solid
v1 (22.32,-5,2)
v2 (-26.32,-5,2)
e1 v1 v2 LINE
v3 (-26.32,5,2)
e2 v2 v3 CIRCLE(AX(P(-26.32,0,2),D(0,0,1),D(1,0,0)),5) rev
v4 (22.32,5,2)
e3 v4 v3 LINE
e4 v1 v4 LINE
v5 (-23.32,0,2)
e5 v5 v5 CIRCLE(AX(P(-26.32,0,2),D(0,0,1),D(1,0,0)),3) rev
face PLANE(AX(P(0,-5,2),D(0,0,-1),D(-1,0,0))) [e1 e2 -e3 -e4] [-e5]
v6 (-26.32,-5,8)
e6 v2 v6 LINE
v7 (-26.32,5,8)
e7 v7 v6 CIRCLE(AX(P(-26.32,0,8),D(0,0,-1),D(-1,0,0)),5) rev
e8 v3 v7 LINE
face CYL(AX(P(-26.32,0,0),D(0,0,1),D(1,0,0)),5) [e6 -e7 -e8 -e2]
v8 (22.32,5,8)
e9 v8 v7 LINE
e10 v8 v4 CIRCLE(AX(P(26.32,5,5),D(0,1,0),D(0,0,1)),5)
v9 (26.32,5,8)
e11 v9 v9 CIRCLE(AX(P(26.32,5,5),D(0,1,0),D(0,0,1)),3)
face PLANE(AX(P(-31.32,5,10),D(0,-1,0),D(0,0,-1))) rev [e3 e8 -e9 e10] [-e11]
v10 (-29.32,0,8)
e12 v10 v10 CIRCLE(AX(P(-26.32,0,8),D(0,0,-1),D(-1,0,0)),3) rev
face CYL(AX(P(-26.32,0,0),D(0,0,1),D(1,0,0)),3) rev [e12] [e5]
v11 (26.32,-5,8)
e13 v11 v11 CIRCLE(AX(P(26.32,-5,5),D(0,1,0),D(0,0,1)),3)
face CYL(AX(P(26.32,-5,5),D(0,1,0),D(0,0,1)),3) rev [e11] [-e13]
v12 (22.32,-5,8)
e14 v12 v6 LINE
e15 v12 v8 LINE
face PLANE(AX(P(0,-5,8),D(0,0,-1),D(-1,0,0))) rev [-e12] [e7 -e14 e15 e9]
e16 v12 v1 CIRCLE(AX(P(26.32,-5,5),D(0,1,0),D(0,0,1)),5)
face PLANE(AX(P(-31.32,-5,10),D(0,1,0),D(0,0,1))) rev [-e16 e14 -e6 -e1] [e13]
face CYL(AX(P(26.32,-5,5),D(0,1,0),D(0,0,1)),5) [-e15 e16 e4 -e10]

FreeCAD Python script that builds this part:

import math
import FreeCAD as App
import Part
import Sketcher
Q = App.Units.Quantity

doc = App.newDocument("Part")
body = doc.addObject("PartDesign::Body", "Body")

# Sketch on XY plane
sketch1 = body.newObject("Sketcher::SketchObject", "Sketch")
sketch1.AttachmentSupport = (doc.getObject("XY_Plane"), [""])
sketch1.MapMode = "FlatFace"
sketch1.addGeometry(Part.LineSegment(App.Vector(-31, 5, 0), App.Vector(-31, -5, 0)), False)
sketch1.addGeometry(Part.LineSegment(App.Vector(-31, -5, 0), App.Vector(31, -5, 0)), False)
sketch1.addGeometry(Part.LineSegment(App.Vector(31, -5, 0), App.Vector(31, 5, 0)), False)
sketch1.addGeometry(Part.LineSegment(App.Vector(31, 5, 0), App.Vector(-31, 5, 0)), False)
sketch1.addConstraint(Sketcher.Constraint("Coincident", 0, 2, 1, 1))
sketch1.addConstraint(Sketcher.Constraint("Coincident", 1, 2, 2, 1))
sketch1.addConstraint(Sketcher.Constraint("Coincident", 2, 2, 3, 1))
sketch1.addConstraint(Sketcher.Constraint("Coincident", 3, 2, 0, 1))
sketch1.addConstraint(Sketcher.Constraint("Vertical", 0))
sketch1.addConstraint(Sketcher.Constraint("Horizontal", 1))
sketch1.addConstraint(Sketcher.Constraint("Vertical", 2))
sketch1.addConstraint(Sketcher.Constraint("Horizontal", 3))
sketch1.addConstraint(Sketcher.Constraint("Symmetric", 0, 2, 2, 2, -1, 1))
sketch1.addConstraint(Sketcher.Constraint("DistanceY", 0, 2, 0, 1, Q("10 mm")))
sketch1.addConstraint(Sketcher.Constraint("DistanceX", 1, 1, 1, 2, Q("62.64 mm")))
pad1 = body.newObject("PartDesign::Pad", "Pad")
pad1.Profile = sketch1
pad1.Length = 10

# Sketch on XZ plane
sketch2 = body.newObject("Sketcher::SketchObject", "Sketch001")
sketch2.AttachmentSupport = (doc.getObject("XZ_Plane"), [""])
sketch2.MapMode = "FlatFace"
sketch2.AttachmentOffset = App.Placement(App.Vector(0, 0, -5), App.Rotation())
sketch2.addGeometry(Part.ArcOfCircle(Part.Circle(App.Vector(26.3, 5, 0), App.Vector(0, 0, 1), 5), math.radians(0), math.radians(90)), False)
sketch2.addGeometry(Part.LineSegment(App.Vector(26.3, 10, 0), App.Vector(31.3, 10, 0)), False)
sketch2.addGeometry(Part.LineSegment(App.Vector(31.3, 10, 0), App.Vector(31.3, 5, 0)), False)
sketch2.addGeometry(Part.LineSegment(App.Vector(31.3, 0, 0), App.Vector(26.3, 0, 0)), False)
sketch2.addGeometry(Part.ArcOfCircle(Part.Circle(App.Vector(26.3, 5, 0), App.Vector(0, 0, 1), 5), math.radians(-90), math.radians(0)), False)
sketch2.addGeometry(Part.LineSegment(App.Vector(31.3, 5, 0), App.Vector(31.3, 0, 0)), False)
sketch2.addGeometry(Part.Circle(App.Vector(26.3, 5, 0), App.Vector(0, 0, 1), 3), False)
sketch2.addConstraint(Sketcher.Constraint("Tangent", 0, 2, 1, 1))
sketch2.addConstraint(Sketcher.Constraint("Coincident", 1, 2, 2, 1))
sketch2.addConstraint(Sketcher.Constraint("Tangent", 2, 2, 0, 1))
sketch2.addConstraint(Sketcher.Constraint("Tangent", 3, 2, 4, 1))
sketch2.addConstraint(Sketcher.Constraint("Tangent", 4, 2, 5, 1))
sketch2.addConstraint(Sketcher.Constraint("Coincident", 5, 2, 3, 1))
sketch2.addConstraint(Sketcher.Constraint("Horizontal", 1))
sketch2.addConstraint(Sketcher.Constraint("Vertical", 2))
sketch2.addConstraint(Sketcher.Constraint("Horizontal", 3))
sketch2.addConstraint(Sketcher.Constraint("Vertical", 5))
sketch2.addConstraint(Sketcher.Constraint("Coincident", 4, 3, 0, 3))
sketch2.addConstraint(Sketcher.Constraint("Coincident", 6, 3, 0, 3))
sketch2.addConstraint(Sketcher.Constraint("Equal", 0, 4))
sketch2.addConstraint(Sketcher.Constraint("PointOnObject", 3, 2, -1))
sketch2.addConstraint(Sketcher.Constraint("Diameter", 6, Q("6 mm")))
sketch2.addConstraint(Sketcher.Constraint("Radius", 0, Q("5 mm")))
sketch2.addConstraint(Sketcher.Constraint("DistanceX", -1, 1, 0, 3, Q("26.32 mm")))
pocket1 = body.newObject("PartDesign::Pocket", "Pocket")
pocket1.Profile = sketch2
pocket1.Type = "ThroughAll"
pocket1.Reversed = True

# Sketch on XY plane
sketch3 = body.newObject("Sketcher::SketchObject", "Sketch002")
sketch3.AttachmentSupport = (doc.getObject("XY_Plane"), [""])
sketch3.MapMode = "FlatFace"
sketch3.AttachmentOffset = App.Placement(App.Vector(0, 0, 10), App.Rotation())
sketch3.addGeometry(Part.ArcOfCircle(Part.Circle(App.Vector(-26.3, 0, 0), App.Vector(0, 0, 1), 5), math.radians(90), math.radians(180)), False)
sketch3.addGeometry(Part.LineSegment(App.Vector(-26.3, 5, 0), App.Vector(-31.3, 5, 0)), False)
sketch3.addGeometry(Part.LineSegment(App.Vector(-31.3, 5, 0), App.Vector(-31.3, 0, 0)), False)
sketch3.addGeometry(Part.ArcOfCircle(Part.Circle(App.Vector(-26.3, 0, 0), App.Vector(0, 0, 1), 5), math.radians(180), math.radians(270)), False)
sketch3.addGeometry(Part.LineSegment(App.Vector(-31.3, 0, 0), App.Vector(-31.3, -5, 0)), False)
sketch3.addGeometry(Part.LineSegment(App.Vector(-31.3, -5, 0), App.Vector(-26.3, -5, 0)), False)
sketch3.addGeometry(Part.Circle(App.Vector(-26.3, 0, 0), App.Vector(0, 0, 1), 3), False)
sketch3.addConstraint(Sketcher.Constraint("Tangent", 0, 1, 1, 1))
sketch3.addConstraint(Sketcher.Constraint("Coincident", 1, 2, 2, 1))
sketch3.addConstraint(Sketcher.Constraint("Tangent", 2, 2, 0, 2))
sketch3.addConstraint(Sketcher.Constraint("Tangent", 3, 1, 4, 1))
sketch3.addConstraint(Sketcher.Constraint("Coincident", 4, 2, 5, 1))
sketch3.addConstraint(Sketcher.Constraint("Tangent", 5, 2, 3, 2))
sketch3.addConstraint(Sketcher.Constraint("Horizontal", 1))
sketch3.addConstraint(Sketcher.Constraint("Vertical", 2))
sketch3.addConstraint(Sketcher.Constraint("Vertical", 4))
sketch3.addConstraint(Sketcher.Constraint("Horizontal", 5))
sketch3.addConstraint(Sketcher.Constraint("Coincident", 3, 3, 0, 3))
sketch3.addConstraint(Sketcher.Constraint("Coincident", 6, 3, 0, 3))
sketch3.addConstraint(Sketcher.Constraint("Equal", 0, 3))
sketch3.addConstraint(Sketcher.Constraint("PointOnObject", 0, 3, -1))
sketch3.addConstraint(Sketcher.Constraint("Diameter", 6, Q("6 mm")))
sketch3.addConstraint(Sketcher.Constraint("Radius", 0, Q("5 mm")))
sketch3.addConstraint(Sketcher.Constraint("DistanceX", 0, 3, -1, 1, Q("26.32 mm")))
pocket2 = body.newObject("PartDesign::Pocket", "Pocket001")
pocket2.Profile = sketch3
pocket2.Type = "ThroughAll"

# Sketch on XZ plane
sketch4 = body.newObject("Sketcher::SketchObject", "Sketch003")
sketch4.AttachmentSupport = (doc.getObject("XZ_Plane"), [""])
sketch4.MapMode = "FlatFace"
sketch4.AttachmentOffset = App.Placement(App.Vector(0, 0, -5), App.Rotation())
sketch4.addGeometry(Part.LineSegment(App.Vector(-21.3, 8, 0), App.Vector(-21.3, 10, 0)), False)
sketch4.addGeometry(Part.LineSegment(App.Vector(-21.3, 10, 0), App.Vector(23.3, 10, 0)), False)
sketch4.addGeometry(Part.LineSegment(App.Vector(23.3, 10, 0), App.Vector(23.3, 8, 0)), False)
sketch4.addGeometry(Part.LineSegment(App.Vector(23.3, 8, 0), App.Vector(-21.3, 8, 0)), False)
sketch4.addGeometry(Part.LineSegment(App.Vector(-21.3, 0, 0), App.Vector(-21.3, 2, 0)), False)
sketch4.addGeometry(Part.LineSegment(App.Vector(-21.3, 2, 0), App.Vector(23.3, 2, 0)), False)
sketch4.addGeometry(Part.LineSegment(App.Vector(23.3, 2, 0), App.Vector(23.3, 0, 0)), False)
sketch4.addGeometry(Part.LineSegment(App.Vector(23.3, 0, 0), App.Vector(-21.3, 0, 0)), False)
sketch4.addConstraint(Sketcher.Constraint("Coincident", 0, 2, 1, 1))
sketch4.addConstraint(Sketcher.Constraint("Coincident", 1, 2, 2, 1))
sketch4.addConstraint(Sketcher.Constraint("Coincident", 2, 2, 3, 1))
sketch4.addConstraint(Sketcher.Constraint("Coincident", 3, 2, 0, 1))
sketch4.addConstraint(Sketcher.Constraint("Coincident", 4, 2, 5, 1))
sketch4.addConstraint(Sketcher.Constraint("Coincident", 5, 2, 6, 1))
sketch4.addConstraint(Sketcher.Constraint("Coincident", 6, 2, 7, 1))
sketch4.addConstraint(Sketcher.Constraint("Coincident", 7, 2, 4, 1))
sketch4.addConstraint(Sketcher.Constraint("Vertical", 0))
sketch4.addConstraint(Sketcher.Constraint("Horizontal", 1))
sketch4.addConstraint(Sketcher.Constraint("Vertical", 2))
sketch4.addConstraint(Sketcher.Constraint("Horizontal", 3))
sketch4.addConstraint(Sketcher.Constraint("Vertical", 4))
sketch4.addConstraint(Sketcher.Constraint("Horizontal", 5))
sketch4.addConstraint(Sketcher.Constraint("Vertical", 6))
sketch4.addConstraint(Sketcher.Constraint("Horizontal", 7))
sketch4.addConstraint(Sketcher.Constraint("PointOnObject", 6, 2, -1))
sketch4.addConstraint(Sketcher.Constraint("Vertical", 3, 2, 4, 2))
sketch4.addConstraint(Sketcher.Constraint("Vertical", 2, 2, 5, 2))
sketch4.addConstraint(Sketcher.Constraint("Equal", 2, 4))
sketch4.addConstraint(Sketcher.Constraint("DistanceY", 0, 1, 0, 2, Q("2 mm")))
sketch4.addConstraint(Sketcher.Constraint("DistanceY", -1, 1, 0, 2, Q("10 mm")))
sketch4.addConstraint(Sketcher.Constraint("DistanceX", 1, 1, 1, 2, Q("44.64 mm")))
sketch4.addConstraint(Sketcher.Constraint("DistanceX", 0, 2, -1, 1, Q("21.32 mm")))
pocket3 = body.newObject("PartDesign::Pocket", "Pocket002")
pocket3.Profile = sketch4
pocket3.Type = "ThroughAll"
pocket3.Reversed = True

# Sketch on XZ plane
sketch5 = body.newObject("Sketcher::SketchObject", "Sketch004")
sketch5.AttachmentSupport = (doc.getObject("XZ_Plane"), [""])
sketch5.MapMode = "FlatFace"
sketch5.AttachmentOffset = App.Placement(App.Vector(0, 0, -5), App.Rotation())
sketch5.addGeometry(Part.LineSegment(App.Vector(23.3, 0, 0), App.Vector(23.3, 1, 0)), False)
sketch5.addGeometry(Part.ArcOfCircle(Part.Circle(App.Vector(26.3, 5, 0), App.Vector(0, 0, 1), 5), math.radians(-127), math.radians(-90)), False)
sketch5.addGeometry(Part.LineSegment(App.Vector(26.3, 0, 0), App.Vector(23.3, 0, 0)), False)
sketch5.addGeometry(Part.ArcOfCircle(Part.Circle(App.Vector(26.3, 5, 0), App.Vector(0, 0, 1), 5), math.radians(90), math.radians(127)), False)
sketch5.addGeometry(Part.LineSegment(App.Vector(23.3, 9, 0), App.Vector(23.3, 10, 0)), False)
sketch5.addGeometry(Part.LineSegment(App.Vector(23.3, 10, 0), App.Vector(26.3, 10, 0)), False)
sketch5.addConstraint(Sketcher.Constraint("Coincident", 0, 2, 1, 1))
sketch5.addConstraint(Sketcher.Constraint("Tangent", 1, 2, 2, 1))
sketch5.addConstraint(Sketcher.Constraint("Coincident", 2, 2, 0, 1))
sketch5.addConstraint(Sketcher.Constraint("Coincident", 3, 2, 4, 1))
sketch5.addConstraint(Sketcher.Constraint("Coincident", 4, 2, 5, 1))
sketch5.addConstraint(Sketcher.Constraint("Tangent", 5, 2, 3, 1))
sketch5.addConstraint(Sketcher.Constraint("Vertical", 0))
sketch5.addConstraint(Sketcher.Constraint("Horizontal", 2))
sketch5.addConstraint(Sketcher.Constraint("Vertical", 4))
sketch5.addConstraint(Sketcher.Constraint("Horizontal", 5))
sketch5.addConstraint(Sketcher.Constraint("Coincident", 3, 3, 1, 3))
sketch5.addConstraint(Sketcher.Constraint("Equal", 1, 3))
sketch5.addConstraint(Sketcher.Constraint("PointOnObject", 1, 2, -1))
sketch5.addConstraint(Sketcher.Constraint("Vertical", 2, 2, 3, 2))
sketch5.addConstraint(Sketcher.Constraint("Radius", 1, Q("5 mm")))
sketch5.addConstraint(Sketcher.Constraint("DistanceX", 2, 2, 2, 1, Q("3 mm")))
sketch5.addConstraint(Sketcher.Constraint("DistanceX", -1, 1, 1, 3, Q("26.32 mm")))
pocket4 = body.newObject("PartDesign::Pocket", "Pocket003")
pocket4.Profile = sketch5
pocket4.Type = "ThroughAll"
pocket4.Reversed = True

# Sketch on XZ plane
sketch6 = body.newObject("Sketcher::SketchObject", "Sketch005")
sketch6.AttachmentSupport = (doc.getObject("XZ_Plane"), [""])
sketch6.MapMode = "FlatFace"
sketch6.AttachmentOffset = App.Placement(App.Vector(0, 0, -5), App.Rotation())
sketch6.addGeometry(Part.Circle(App.Vector(26, 5, 0), App.Vector(0, 0, 1), 5), False)
sketch6.addConstraint(Sketcher.Constraint("Diameter", 0, Q("10 mm")))
sketch6.addConstraint(Sketcher.Constraint("DistanceY", -1, 1, 0, 3, Q("5 mm")))
sketch6.addConstraint(Sketcher.Constraint("DistanceX", -1, 1, 0, 3, Q("26.32 mm")))
pad2 = body.newObject("PartDesign::Pad", "Pad001")
pad2.Profile = sketch6
pad2.Length = 10

# Sketch on XZ plane
sketch7 = body.newObject("Sketcher::SketchObject", "Sketch006")
sketch7.AttachmentSupport = (doc.getObject("XZ_Plane"), [""])
sketch7.MapMode = "FlatFace"
sketch7.AttachmentOffset = App.Placement(App.Vector(0, 0, -5), App.Rotation())
sketch7.addGeometry(Part.Circle(App.Vector(26.3, 5, 0), App.Vector(0, 0, 1), 3), False)
sketch7.addConstraint(Sketcher.Constraint("Diameter", 0, Q("6 mm")))
sketch7.addConstraint(Sketcher.Constraint("DistanceY", -1, 1, 0, 3, Q("5 mm")))
sketch7.addConstraint(Sketcher.Constraint("DistanceX", -1, 1, 0, 3, Q("26.32 mm")))
pocket5 = body.newObject("PartDesign::Pocket", "Pocket004")
pocket5.Profile = sketch7
pocket5.Type = "ThroughAll"
pocket5.Reversed = True

# Sketch on YZ plane
sketch8 = body.newObject("Sketcher::SketchObject", "Sketch007")
sketch8.AttachmentSupport = (doc.getObject("YZ_Plane"), [""])
sketch8.MapMode = "FlatFace"
sketch8.AttachmentOffset = App.Placement(App.Vector(0, 0, -21.32), App.Rotation())
sketch8.addGeometry(Part.LineSegment(App.Vector(5, 10, 0), App.Vector(-5, 10, 0)), False)
sketch8.addGeometry(Part.LineSegment(App.Vector(-5, 10, 0), App.Vector(-5, 8, 0)), False)
sketch8.addGeometry(Part.LineSegment(App.Vector(-5, 8, 0), App.Vector(5, 8, 0)), False)
sketch8.addGeometry(Part.LineSegment(App.Vector(5, 8, 0), App.Vector(5, 10, 0)), False)
sketch8.addGeometry(Part.LineSegment(App.Vector(5, 2, 0), App.Vector(-5, 2, 0)), False)
sketch8.addGeometry(Part.LineSegment(App.Vector(-5, 2, 0), App.Vector(-5, 0, 0)), False)
sketch8.addGeometry(Part.LineSegment(App.Vector(-5, 0, 0), App.Vector(5, 0, 0)), False)
sketch8.addGeometry(Part.LineSegment(App.Vector(5, 0, 0), App.Vector(5, 2, 0)), False)
sketch8.addConstraint(Sketcher.Constraint("Coincident", 0, 2, 1, 1))
sketch8.addConstraint(Sketcher.Constraint("Coincident", 1, 2, 2, 1))
sketch8.addConstraint(Sketcher.Constraint("Coincident", 2, 2, 3, 1))
sketch8.addConstraint(Sketcher.Constraint("Coincident", 3, 2, 0, 1))
sketch8.addConstraint(Sketcher.Constraint("Coincident", 4, 2, 5, 1))
sketch8.addConstraint(Sketcher.Constraint("Coincident", 5, 2, 6, 1))
sketch8.addConstraint(Sketcher.Constraint("Coincident", 6, 2, 7, 1))
sketch8.addConstraint(Sketcher.Constraint("Coincident", 7, 2, 4, 1))
sketch8.addConstraint(Sketcher.Constraint("Horizontal", 0))
sketch8.addConstraint(Sketcher.Constraint("Vertical", 1))
sketch8.addConstraint(Sketcher.Constraint("Horizontal", 2))
sketch8.addConstraint(Sketcher.Constraint("Vertical", 3))
sketch8.addConstraint(Sketcher.Constraint("Horizontal", 4))
sketch8.addConstraint(Sketcher.Constraint("Vertical", 5))
sketch8.addConstraint(Sketcher.Constraint("Horizontal", 6))
sketch8.addConstraint(Sketcher.Constraint("Vertical", 7))
sketch8.addConstraint(Sketcher.Constraint("Symmetric", 5, 2, 6, 2, -1, 1))
sketch8.addConstraint(Sketcher.Constraint("Vertical", 1, 2, 4, 2))
sketch8.addConstraint(Sketcher.Constraint("Vertical", 3, 2, 6, 2))
sketch8.addConstraint(Sketcher.Constraint("Equal", 3, 5))
sketch8.addConstraint(Sketcher.Constraint("DistanceX", 0, 2, 0, 1, Q("10 mm")))
sketch8.addConstraint(Sketcher.Constraint("DistanceY", 1, 2, 1, 1, Q("2 mm")))
sketch8.addConstraint(Sketcher.Constraint("DistanceY", -1, 1, 0, 2, Q("10 mm")))
pocket6 = body.newObject("PartDesign::Pocket", "Pocket005")
pocket6.Profile = sketch8
pocket6.Type = "ThroughAll"

doc.recompute()
